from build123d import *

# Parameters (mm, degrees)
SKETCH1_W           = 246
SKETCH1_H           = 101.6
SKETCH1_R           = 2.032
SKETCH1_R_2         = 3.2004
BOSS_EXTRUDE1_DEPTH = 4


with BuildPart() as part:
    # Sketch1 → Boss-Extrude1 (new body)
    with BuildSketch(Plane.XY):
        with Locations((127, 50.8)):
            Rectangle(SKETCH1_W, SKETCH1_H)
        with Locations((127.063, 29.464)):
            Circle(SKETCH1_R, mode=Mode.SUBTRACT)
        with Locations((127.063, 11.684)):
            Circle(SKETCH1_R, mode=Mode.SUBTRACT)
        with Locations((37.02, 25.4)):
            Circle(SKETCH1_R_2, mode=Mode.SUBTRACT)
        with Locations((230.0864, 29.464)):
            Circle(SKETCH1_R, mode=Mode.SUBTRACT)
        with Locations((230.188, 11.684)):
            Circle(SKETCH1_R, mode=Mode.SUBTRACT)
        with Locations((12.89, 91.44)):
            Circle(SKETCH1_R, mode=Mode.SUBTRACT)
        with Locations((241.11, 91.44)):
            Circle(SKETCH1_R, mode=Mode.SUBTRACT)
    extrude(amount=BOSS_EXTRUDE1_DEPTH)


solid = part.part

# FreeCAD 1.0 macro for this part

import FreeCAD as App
import Part
import Sketcher
Q = App.Units.Quantity


def add_polygon(sketch, points):
    """Adds a closed chain of lines whose ends are joined by coincident constraints."""
    first, n = sketch.GeometryCount, len(points)
    for a, b in zip(points, points[1:] + points[:1]):
        sketch.addGeometry(Part.LineSegment(App.Vector(*a, 0), App.Vector(*b, 0)), False)
    for i in range(n):
        sketch.addConstraint(Sketcher.Constraint("Coincident", first + i, 2, first + (i + 1) % n, 1))

doc = App.newDocument("Part")
body = doc.addObject("PartDesign::Body", "Body")

# Sketch on XY plane
sketch1 = doc.addObject("Sketcher::SketchObject", "Sketch")
body.addObject(sketch1)
sketch1.AttachmentSupport = (doc.XY_Plane, [""])
sketch1.MapMode = "FlatFace"
add_polygon(sketch1, [(4, 101.6), (4, 0), (250, 0), (250, 101.6)])  # lines 0-3
sketch1.addGeometry(Part.Circle(App.Vector(37.02, 25.4, 0), App.Vector(0, 0, 1), 3.2004), False)  # 4
sketch1.addGeometry(Part.Circle(App.Vector(127.063, 11.684, 0), App.Vector(0, 0, 1), 2.032), False)  # 5
sketch1.addGeometry(Part.Circle(App.Vector(127.063, 29.464, 0), App.Vector(0, 0, 1), 2.032), False)  # 6
sketch1.addGeometry(Part.Circle(App.Vector(230.188, 11.684, 0), App.Vector(0, 0, 1), 2.032), False)  # 7
sketch1.addGeometry(Part.Circle(App.Vector(230.0864, 29.464, 0), App.Vector(0, 0, 1), 2.032), False)  # 8
sketch1.addGeometry(Part.Circle(App.Vector(12.89, 91.44, 0), App.Vector(0, 0, 1), 2.032), False)  # 9
sketch1.addGeometry(Part.Circle(App.Vector(241.11, 91.44, 0), App.Vector(0, 0, 1), 2.032), False)  # 10
sketch1.addConstraint([
    Sketcher.Constraint("Vertical", 0),
    Sketcher.Constraint("Horizontal", 1),
    Sketcher.Constraint("Vertical", 2),
    Sketcher.Constraint("Horizontal", 3),
    Sketcher.Constraint("Equal", 5, 6),
    Sketcher.Constraint("Equal", 6, 7),
    Sketcher.Constraint("Equal", 7, 8),
    Sketcher.Constraint("Equal", 8, 9),
    Sketcher.Constraint("Equal", 9, 10),
    Sketcher.Constraint("PointOnObject", 0, 2, -1),
    Sketcher.Constraint("Horizontal", 5, 3, 7, 3),
    Sketcher.Constraint("Horizontal", 6, 3, 8, 3),
    Sketcher.Constraint("Horizontal", 9, 3, 10, 3),
    Sketcher.Constraint("Vertical", 5, 3, 6, 3),
    Sketcher.Constraint("Diameter", 5, Q("0.16 in")),
    Sketcher.Constraint("DistanceY", 0, 2, 0, 1, Q("4 in")),
    Sketcher.Constraint("Diameter", 4, Q("0.252 in")),
    Sketcher.Constraint("DistanceY", -1, 1, 4, 3, Q("1 in")),
    Sketcher.Constraint("DistanceY", -1, 1, 9, 3, Q("3.6 in")),
    Sketcher.Constraint("DistanceY", 5, 3, 6, 3, Q("0.7 in")),
    Sketcher.Constraint("DistanceX", 0, 2, 4, 3, Q("1.3 in")),
    Sketcher.Constraint("DistanceY", -1, 1, 5, 3, Q("0.46 in")),
    Sketcher.Constraint("DistanceX", 9, 3, 4, 3, Q("0.95 in")),
    Sketcher.Constraint("DistanceX", 7, 3, 10, 3, Q("0.43 in")),
    Sketcher.Constraint("DistanceX", 7, 3, 1, 2, Q("0.78 in")),
    Sketcher.Constraint("DistanceX", 4, 3, 5, 3, Q("3.545 in")),
    Sketcher.Constraint("DistanceX", 8, 3, 7, 3, Q("0.004 in")),
    Sketcher.Constraint("DistanceX", 1, 1, 1, 2, 246.0),
    Sketcher.Constraint("DistanceX", -1, 1, 4, 3, 37.02),
])
pad1 = doc.addObject("PartDesign::Pad", "Pad")
body.addObject(pad1)
pad1.Profile = sketch1
pad1.Length = 4

doc.recompute()
